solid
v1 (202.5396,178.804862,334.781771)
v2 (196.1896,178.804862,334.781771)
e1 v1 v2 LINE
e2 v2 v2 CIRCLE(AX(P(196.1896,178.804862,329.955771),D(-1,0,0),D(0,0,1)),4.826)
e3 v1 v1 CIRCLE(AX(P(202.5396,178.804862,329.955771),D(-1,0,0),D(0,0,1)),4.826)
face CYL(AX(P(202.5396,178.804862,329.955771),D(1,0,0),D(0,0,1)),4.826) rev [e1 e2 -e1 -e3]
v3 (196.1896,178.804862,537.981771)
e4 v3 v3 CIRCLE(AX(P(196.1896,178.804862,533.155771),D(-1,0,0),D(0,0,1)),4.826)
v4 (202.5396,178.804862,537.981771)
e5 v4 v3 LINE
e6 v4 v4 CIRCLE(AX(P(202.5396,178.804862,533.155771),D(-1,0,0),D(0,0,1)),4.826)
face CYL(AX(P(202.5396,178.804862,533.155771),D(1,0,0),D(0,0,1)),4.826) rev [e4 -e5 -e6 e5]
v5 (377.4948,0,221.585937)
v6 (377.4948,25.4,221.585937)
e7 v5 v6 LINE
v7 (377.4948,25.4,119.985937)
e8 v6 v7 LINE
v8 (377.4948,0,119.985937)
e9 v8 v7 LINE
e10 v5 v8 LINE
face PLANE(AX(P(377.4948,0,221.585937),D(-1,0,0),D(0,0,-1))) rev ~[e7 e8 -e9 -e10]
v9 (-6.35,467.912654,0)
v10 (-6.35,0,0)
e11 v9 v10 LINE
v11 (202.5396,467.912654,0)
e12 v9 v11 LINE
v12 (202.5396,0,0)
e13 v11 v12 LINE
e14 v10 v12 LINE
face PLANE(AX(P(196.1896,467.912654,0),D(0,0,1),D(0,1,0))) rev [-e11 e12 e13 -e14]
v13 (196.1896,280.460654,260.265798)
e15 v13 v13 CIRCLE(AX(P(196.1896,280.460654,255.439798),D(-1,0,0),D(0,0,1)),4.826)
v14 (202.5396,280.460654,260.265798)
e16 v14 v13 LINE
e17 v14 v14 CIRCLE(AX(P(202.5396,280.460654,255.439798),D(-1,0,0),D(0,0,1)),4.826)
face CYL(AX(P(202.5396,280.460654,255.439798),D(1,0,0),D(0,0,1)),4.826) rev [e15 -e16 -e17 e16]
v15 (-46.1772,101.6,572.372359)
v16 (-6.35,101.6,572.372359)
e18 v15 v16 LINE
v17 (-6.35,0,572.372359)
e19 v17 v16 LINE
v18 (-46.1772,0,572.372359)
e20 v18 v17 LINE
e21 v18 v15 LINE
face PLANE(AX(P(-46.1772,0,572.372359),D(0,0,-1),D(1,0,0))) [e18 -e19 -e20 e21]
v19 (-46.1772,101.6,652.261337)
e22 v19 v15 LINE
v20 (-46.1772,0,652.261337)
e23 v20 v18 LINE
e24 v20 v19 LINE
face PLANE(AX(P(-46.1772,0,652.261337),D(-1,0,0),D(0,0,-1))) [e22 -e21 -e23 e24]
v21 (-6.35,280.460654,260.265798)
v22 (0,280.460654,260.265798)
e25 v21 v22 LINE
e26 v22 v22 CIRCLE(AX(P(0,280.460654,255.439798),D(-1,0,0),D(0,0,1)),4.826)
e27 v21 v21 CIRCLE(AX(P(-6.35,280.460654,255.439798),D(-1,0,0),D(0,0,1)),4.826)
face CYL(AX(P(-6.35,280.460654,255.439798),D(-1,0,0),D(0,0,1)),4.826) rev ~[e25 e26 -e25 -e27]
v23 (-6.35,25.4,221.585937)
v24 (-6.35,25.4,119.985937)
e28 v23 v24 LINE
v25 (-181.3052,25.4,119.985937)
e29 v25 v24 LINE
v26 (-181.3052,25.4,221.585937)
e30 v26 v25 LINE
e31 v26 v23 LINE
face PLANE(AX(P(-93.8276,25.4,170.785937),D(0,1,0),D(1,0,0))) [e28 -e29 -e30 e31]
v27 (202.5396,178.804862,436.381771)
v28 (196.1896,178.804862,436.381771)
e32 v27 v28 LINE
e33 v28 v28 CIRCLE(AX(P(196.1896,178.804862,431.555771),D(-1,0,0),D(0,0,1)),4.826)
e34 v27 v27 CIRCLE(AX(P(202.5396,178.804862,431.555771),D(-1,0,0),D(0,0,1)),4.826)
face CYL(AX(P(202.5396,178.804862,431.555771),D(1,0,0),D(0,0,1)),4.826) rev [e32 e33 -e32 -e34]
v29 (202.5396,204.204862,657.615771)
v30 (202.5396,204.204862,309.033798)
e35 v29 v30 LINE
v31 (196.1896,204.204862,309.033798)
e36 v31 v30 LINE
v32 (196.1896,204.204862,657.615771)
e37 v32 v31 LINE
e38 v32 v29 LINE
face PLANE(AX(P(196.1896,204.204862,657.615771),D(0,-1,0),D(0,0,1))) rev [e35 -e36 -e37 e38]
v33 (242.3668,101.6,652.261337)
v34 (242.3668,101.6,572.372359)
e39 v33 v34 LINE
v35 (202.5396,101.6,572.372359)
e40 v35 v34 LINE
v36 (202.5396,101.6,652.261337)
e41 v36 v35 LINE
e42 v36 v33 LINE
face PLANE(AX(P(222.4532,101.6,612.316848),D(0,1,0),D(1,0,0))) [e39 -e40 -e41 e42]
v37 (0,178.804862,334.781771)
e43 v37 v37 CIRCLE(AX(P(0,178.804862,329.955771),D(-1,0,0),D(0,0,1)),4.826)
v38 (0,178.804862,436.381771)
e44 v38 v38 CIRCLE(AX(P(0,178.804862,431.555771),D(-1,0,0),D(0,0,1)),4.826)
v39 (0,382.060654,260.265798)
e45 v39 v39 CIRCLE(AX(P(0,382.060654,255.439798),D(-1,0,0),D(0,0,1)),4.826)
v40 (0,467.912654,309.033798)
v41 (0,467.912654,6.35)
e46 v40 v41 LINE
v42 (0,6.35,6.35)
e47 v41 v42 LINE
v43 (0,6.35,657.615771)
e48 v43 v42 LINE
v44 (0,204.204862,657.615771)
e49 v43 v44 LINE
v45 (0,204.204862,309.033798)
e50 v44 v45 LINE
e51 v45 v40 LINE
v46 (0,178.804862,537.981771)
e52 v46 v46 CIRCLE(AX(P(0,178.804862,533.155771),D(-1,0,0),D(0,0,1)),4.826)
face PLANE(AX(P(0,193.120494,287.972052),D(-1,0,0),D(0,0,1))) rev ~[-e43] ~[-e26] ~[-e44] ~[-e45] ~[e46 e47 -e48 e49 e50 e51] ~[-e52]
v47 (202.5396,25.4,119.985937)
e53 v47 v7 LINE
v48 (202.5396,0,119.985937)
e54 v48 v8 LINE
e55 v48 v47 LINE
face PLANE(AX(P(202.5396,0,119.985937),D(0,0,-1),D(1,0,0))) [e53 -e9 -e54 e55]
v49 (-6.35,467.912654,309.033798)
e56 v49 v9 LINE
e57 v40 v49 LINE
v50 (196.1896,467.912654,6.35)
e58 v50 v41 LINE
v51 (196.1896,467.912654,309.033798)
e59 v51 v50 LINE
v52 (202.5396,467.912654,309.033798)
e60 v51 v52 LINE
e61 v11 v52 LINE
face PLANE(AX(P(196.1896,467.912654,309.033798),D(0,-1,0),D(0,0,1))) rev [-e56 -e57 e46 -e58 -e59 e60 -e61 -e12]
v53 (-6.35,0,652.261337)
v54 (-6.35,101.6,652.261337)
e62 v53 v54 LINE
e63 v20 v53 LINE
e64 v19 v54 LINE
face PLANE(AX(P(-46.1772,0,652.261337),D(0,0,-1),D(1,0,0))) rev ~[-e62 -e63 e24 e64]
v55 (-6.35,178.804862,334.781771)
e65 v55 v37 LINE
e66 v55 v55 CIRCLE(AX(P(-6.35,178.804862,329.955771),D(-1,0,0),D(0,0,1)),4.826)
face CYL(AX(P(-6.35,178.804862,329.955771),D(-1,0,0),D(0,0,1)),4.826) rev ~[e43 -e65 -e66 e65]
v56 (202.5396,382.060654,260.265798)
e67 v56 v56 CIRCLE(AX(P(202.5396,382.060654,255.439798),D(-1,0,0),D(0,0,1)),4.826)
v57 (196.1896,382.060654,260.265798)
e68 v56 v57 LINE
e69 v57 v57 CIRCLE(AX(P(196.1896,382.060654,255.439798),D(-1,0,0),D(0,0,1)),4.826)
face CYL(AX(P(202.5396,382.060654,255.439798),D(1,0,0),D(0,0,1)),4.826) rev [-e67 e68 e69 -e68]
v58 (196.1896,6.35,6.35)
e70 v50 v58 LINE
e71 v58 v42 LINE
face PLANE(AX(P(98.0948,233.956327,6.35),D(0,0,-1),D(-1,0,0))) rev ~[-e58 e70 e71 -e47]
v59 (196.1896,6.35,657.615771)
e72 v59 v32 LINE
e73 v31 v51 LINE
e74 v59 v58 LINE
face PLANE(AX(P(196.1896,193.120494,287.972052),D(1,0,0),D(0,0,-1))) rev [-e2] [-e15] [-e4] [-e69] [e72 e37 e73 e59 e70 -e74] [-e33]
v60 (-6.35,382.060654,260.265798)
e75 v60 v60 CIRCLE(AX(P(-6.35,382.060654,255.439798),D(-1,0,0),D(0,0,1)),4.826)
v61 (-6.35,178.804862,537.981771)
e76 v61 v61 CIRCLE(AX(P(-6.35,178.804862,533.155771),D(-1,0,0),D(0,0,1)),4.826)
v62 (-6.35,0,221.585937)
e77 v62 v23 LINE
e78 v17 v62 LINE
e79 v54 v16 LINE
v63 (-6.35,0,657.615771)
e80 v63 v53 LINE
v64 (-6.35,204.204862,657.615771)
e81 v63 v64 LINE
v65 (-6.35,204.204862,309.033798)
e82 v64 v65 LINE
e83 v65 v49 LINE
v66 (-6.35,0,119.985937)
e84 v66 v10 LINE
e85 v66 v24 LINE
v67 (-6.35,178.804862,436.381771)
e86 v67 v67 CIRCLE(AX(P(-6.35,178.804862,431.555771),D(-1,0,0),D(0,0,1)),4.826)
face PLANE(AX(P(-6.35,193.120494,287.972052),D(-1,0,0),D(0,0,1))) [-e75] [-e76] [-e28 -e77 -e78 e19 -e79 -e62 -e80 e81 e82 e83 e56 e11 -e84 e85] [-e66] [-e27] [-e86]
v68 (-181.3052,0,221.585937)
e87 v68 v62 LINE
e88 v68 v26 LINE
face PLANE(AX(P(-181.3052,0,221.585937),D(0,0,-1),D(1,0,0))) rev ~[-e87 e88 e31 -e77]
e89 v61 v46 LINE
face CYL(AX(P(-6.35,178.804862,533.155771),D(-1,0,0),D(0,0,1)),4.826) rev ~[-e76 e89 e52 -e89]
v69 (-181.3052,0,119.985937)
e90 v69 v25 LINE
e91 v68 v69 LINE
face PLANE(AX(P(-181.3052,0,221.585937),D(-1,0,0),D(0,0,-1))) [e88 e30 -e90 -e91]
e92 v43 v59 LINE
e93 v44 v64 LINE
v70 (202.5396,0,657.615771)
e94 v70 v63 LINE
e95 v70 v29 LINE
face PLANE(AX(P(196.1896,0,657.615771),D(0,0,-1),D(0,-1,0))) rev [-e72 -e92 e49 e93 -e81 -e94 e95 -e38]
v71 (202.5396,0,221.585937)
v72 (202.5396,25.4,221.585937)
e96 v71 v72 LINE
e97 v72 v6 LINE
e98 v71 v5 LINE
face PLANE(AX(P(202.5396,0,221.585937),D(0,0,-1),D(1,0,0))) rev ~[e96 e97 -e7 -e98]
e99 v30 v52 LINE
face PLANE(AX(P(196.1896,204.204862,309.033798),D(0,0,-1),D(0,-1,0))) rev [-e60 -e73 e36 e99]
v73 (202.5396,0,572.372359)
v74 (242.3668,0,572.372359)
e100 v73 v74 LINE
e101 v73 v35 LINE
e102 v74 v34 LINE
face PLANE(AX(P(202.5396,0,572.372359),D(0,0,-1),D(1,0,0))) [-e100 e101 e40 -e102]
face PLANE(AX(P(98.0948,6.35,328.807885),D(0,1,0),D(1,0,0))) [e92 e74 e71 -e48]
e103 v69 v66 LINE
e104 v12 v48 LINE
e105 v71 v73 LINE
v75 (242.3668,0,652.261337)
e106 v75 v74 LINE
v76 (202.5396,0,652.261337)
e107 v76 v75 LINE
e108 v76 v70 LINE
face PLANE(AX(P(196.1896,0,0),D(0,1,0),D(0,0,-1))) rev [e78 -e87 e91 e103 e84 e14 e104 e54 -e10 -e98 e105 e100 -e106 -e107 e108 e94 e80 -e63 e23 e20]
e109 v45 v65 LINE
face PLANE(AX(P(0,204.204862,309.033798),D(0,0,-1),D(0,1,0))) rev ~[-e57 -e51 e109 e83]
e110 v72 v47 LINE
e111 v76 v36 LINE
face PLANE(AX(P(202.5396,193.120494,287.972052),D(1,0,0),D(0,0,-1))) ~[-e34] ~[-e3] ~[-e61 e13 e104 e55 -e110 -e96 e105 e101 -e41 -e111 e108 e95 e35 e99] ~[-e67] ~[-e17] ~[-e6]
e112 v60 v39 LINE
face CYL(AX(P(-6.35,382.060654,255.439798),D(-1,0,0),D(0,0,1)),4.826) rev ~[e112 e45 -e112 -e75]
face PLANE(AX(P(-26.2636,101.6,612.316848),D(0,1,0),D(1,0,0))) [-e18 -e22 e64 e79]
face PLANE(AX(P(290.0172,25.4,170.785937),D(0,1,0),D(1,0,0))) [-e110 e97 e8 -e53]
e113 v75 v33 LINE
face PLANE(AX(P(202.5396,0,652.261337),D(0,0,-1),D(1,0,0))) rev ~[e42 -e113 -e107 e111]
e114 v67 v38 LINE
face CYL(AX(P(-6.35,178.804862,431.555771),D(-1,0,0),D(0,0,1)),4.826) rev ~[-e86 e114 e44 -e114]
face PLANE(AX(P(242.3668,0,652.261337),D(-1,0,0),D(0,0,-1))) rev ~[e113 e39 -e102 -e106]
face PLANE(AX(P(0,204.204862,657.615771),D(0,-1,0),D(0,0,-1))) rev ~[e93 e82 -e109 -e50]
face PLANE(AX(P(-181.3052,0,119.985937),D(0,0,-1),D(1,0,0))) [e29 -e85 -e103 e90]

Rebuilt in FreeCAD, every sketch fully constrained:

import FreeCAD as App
import Part
import Sketcher
Q = App.Units.Quantity

doc = App.newDocument("Part")
params = doc.addObject("Spreadsheet::Sheet", "Params")
for row, (alias, value) in enumerate([
    ("pad1_length", "0.25 in"),
    ("sketch2_width", "7.724 in"),
    ("pad2_length", "0.25 in"),
    ("sketch3_width", "8.224 in"),
    ("pad3_length", "0.25 in"),
    ("sketch4_height", "4 in"),
    ("sketch4_width", "6.888 in"),
    ("pad4_length", "1 in"),
    ("sketch5_width", "1.568 in"),
    ("pad5_length", "4 in"),
    ("sketch6_diameter", "0.38 in"),
    ("pocket1_length", "0.25 in"),
], start=1):
    params.set(f"A{row}", alias)
    params.set(f"B{row}", "=" + value)
    params.setAlias(f"B{row}", alias)

body = doc.addObject("PartDesign::Body", "Body")

# Sketch on YZ plane
sketch1 = body.newObject("Sketcher::SketchObject", "Sketch")
sketch1.AttachmentSupport = (doc.getObject("YZ_Plane"), [""])
sketch1.MapMode = "FlatFace"
sketch1.addGeometry([
    Part.LineSegment(App.Vector(0, 658, 0), App.Vector(0, 0, 0)),  # 0
    Part.LineSegment(App.Vector(0, 0, 0), App.Vector(468, 0, 0)),  # 1
    Part.LineSegment(App.Vector(468, 0, 0), App.Vector(468, 309, 0)),  # 2
    Part.LineSegment(App.Vector(468, 309, 0), App.Vector(204, 309, 0)),  # 3
    Part.LineSegment(App.Vector(204, 309, 0), App.Vector(204, 658, 0)),  # 4
    Part.LineSegment(App.Vector(204, 658, 0), App.Vector(0, 658, 0)),  # 5
], False)
sketch1.addConstraint([
    Sketcher.Constraint("Coincident", 0, 2, 1, 1),
    Sketcher.Constraint("Coincident", 1, 2, 2, 1),
    Sketcher.Constraint("Coincident", 2, 2, 3, 1),
    Sketcher.Constraint("Coincident", 3, 2, 4, 1),
    Sketcher.Constraint("Coincident", 4, 2, 5, 1),
    Sketcher.Constraint("Coincident", 5, 2, 0, 1),
    Sketcher.Constraint("Vertical", 0),
    Sketcher.Constraint("Horizontal", 1),
    Sketcher.Constraint("Vertical", 2),
    Sketcher.Constraint("Horizontal", 3),
    Sketcher.Constraint("Vertical", 4),
    Sketcher.Constraint("Horizontal", 5),
    Sketcher.Constraint("Coincident", 0, 2, -1, 1),
    Sketcher.Constraint("DistanceY", 2, 1, 2, 2, 309.033798),
    Sketcher.Constraint("DistanceX", 5, 2, 5, 1, 204.204862),
    Sketcher.Constraint("DistanceY", 0, 2, 0, 1, 657.615771),
    Sketcher.Constraint("DistanceX", 1, 1, 1, 2, 467.912654),
])
pad1 = body.newObject("PartDesign::Pad", "Pad")
pad1.Profile = sketch1
pad1.setExpression("Length", "Params.pad1_length")
pad1.Reversed = True

# Sketch on XZ plane
sketch2 = body.newObject("Sketcher::SketchObject", "Sketch001")
sketch2.AttachmentSupport = (doc.getObject("XZ_Plane"), [""])
sketch2.MapMode = "FlatFace"
sketch2.addGeometry([
    Part.LineSegment(App.Vector(0, 0, 0), App.Vector(0, 658, 0)),
    Part.LineSegment(App.Vector(0, 658, 0), App.Vector(196, 658, 0)),
    Part.LineSegment(App.Vector(196, 658, 0), App.Vector(196, 0, 0)),
    Part.LineSegment(App.Vector(196, 0, 0), App.Vector(0, 0, 0)),
], False)
sketch2.addConstraint([
    Sketcher.Constraint("Coincident", 0, 2, 1, 1),
    Sketcher.Constraint("Coincident", 1, 2, 2, 1),
    Sketcher.Constraint("Coincident", 2, 2, 3, 1),
    Sketcher.Constraint("Coincident", 3, 2, 0, 1),
    Sketcher.Constraint("Vertical", 0),
    Sketcher.Constraint("Horizontal", 1),
    Sketcher.Constraint("Vertical", 2),
    Sketcher.Constraint("Horizontal", 3),
    Sketcher.Constraint("Coincident", 3, 2, -1, 1),
    Sketcher.Constraint("DistanceX", 1, 1, 1, 2, Q("7.724 in")),
    Sketcher.Constraint("DistanceY", 0, 1, 0, 2, 657.615771),
])
sketch2.setExpression("Constraints[9]", "Params.sketch2_width")
pad2 = body.newObject("PartDesign::Pad", "Pad001")
pad2.Profile = sketch2
pad2.setExpression("Length", "Params.pad2_length")
pad2.Reversed = True
doc.recompute()

datumplane = body.newObject("PartDesign::Plane", "DatumPlane")
datumplane.AttachmentSupport = (doc.getObject("YZ_Plane"), [""])
datumplane.MapMode = "FlatFace"
datumplane.AttachmentOffset = App.Placement(App.Vector(0, 0, 3.862 * 25.4), App.Rotation())
mirrored = body.newObject("PartDesign::Mirrored", "Mirrored")
mirrored.Originals = [pad1]
mirrored.MirrorPlane = (datumplane, [""])
body.Tip = mirrored

# Sketch on XY plane
sketch3 = body.newObject("Sketcher::SketchObject", "Sketch002")
sketch3.AttachmentSupport = (doc.getObject("XY_Plane"), [""])
sketch3.MapMode = "FlatFace"
sketch3.addGeometry([
    Part.LineSegment(App.Vector(203, 468, 0), App.Vector(203, 0, 0)),
    Part.LineSegment(App.Vector(203, 0, 0), App.Vector(-6, 0, 0)),
    Part.LineSegment(App.Vector(-6, 0, 0), App.Vector(-6, 468, 0)),
    Part.LineSegment(App.Vector(-6, 468, 0), App.Vector(203, 468, 0)),
], False)
sketch3.addConstraint([
    Sketcher.Constraint("Coincident", 0, 2, 1, 1),
    Sketcher.Constraint("Coincident", 1, 2, 2, 1),
    Sketcher.Constraint("Coincident", 2, 2, 3, 1),
    Sketcher.Constraint("Coincident", 3, 2, 0, 1),
    Sketcher.Constraint("Vertical", 0),
    Sketcher.Constraint("Horizontal", 1),
    Sketcher.Constraint("Vertical", 2),
    Sketcher.Constraint("Horizontal", 3),
    Sketcher.Constraint("PointOnObject", 0, 2, -1),
    Sketcher.Constraint("DistanceX", 1, 2, 1, 1, Q("8.224 in")),
    Sketcher.Constraint("DistanceX", 1, 2, -1, 1, Q("0.25 in")),
    Sketcher.Constraint("DistanceY", 0, 2, 0, 1, 467.912654),
])
sketch3.setExpression("Constraints[9]", "Params.sketch3_width")
pad3 = body.newObject("PartDesign::Pad", "Pad002")
pad3.Profile = sketch3
pad3.setExpression("Length", "Params.pad3_length")

# Sketch on XZ plane
sketch4 = body.newObject("Sketcher::SketchObject", "Sketch003")
sketch4.AttachmentSupport = (doc.getObject("XZ_Plane"), [""])
sketch4.MapMode = "FlatFace"
sketch4.addGeometry([
    Part.LineSegment(App.Vector(-181, 120, 0), App.Vector(-181, 222, 0)),  # 0
    Part.LineSegment(App.Vector(-181, 222, 0), App.Vector(-6, 222, 0)),  # 1
    Part.LineSegment(App.Vector(-6, 222, 0), App.Vector(-6, 120, 0)),  # 2
    Part.LineSegment(App.Vector(-6, 120, 0), App.Vector(-181, 120, 0)),  # 3
    Part.LineSegment(App.Vector(203, 120, 0), App.Vector(203, 222, 0)),  # 4
    Part.LineSegment(App.Vector(203, 222, 0), App.Vector(377, 222, 0)),  # 5
    Part.LineSegment(App.Vector(377, 222, 0), App.Vector(377, 120, 0)),  # 6
    Part.LineSegment(App.Vector(377, 120, 0), App.Vector(203, 120, 0)),  # 7
], False)
sketch4.addConstraint([
    Sketcher.Constraint("Coincident", 0, 2, 1, 1),
    Sketcher.Constraint("Coincident", 1, 2, 2, 1),
    Sketcher.Constraint("Coincident", 2, 2, 3, 1),
    Sketcher.Constraint("Coincident", 3, 2, 0, 1),
    Sketcher.Constraint("Coincident", 4, 2, 5, 1),
    Sketcher.Constraint("Coincident", 5, 2, 6, 1),
    Sketcher.Constraint("Coincident", 6, 2, 7, 1),
    Sketcher.Constraint("Coincident", 7, 2, 4, 1),
    Sketcher.Constraint("Vertical", 0),
    Sketcher.Constraint("Horizontal", 1),
    Sketcher.Constraint("Vertical", 2),
    Sketcher.Constraint("Horizontal", 3),
    Sketcher.Constraint("Vertical", 4),
    Sketcher.Constraint("Horizontal", 5),
    Sketcher.Constraint("Vertical", 6),
    Sketcher.Constraint("Horizontal", 7),
    Sketcher.Constraint("Horizontal", 1, 2, 4, 2),
    Sketcher.Constraint("Horizontal", 3, 2, 6, 2),
    Sketcher.Constraint("Equal", 3, 5),
    Sketcher.Constraint("DistanceY", 0, 1, 0, 2, Q("4 in")),
    Sketcher.Constraint("DistanceX", 0, 2, 5, 2, Q("22 in")),
    Sketcher.Constraint("DistanceX", 1, 1, 1, 2, Q("6.888 in")),
    Sketcher.Constraint("DistanceX", 1, 2, -1, 1, Q("0.25 in")),
    Sketcher.Constraint("DistanceY", -1, 1, 0, 2, 221.585937),
])
sketch4.setExpression("Constraints[19]", "Params.sketch4_height")
sketch4.setExpression("Constraints[21]", "Params.sketch4_width")
pad4 = body.newObject("PartDesign::Pad", "Pad003")
pad4.Profile = sketch4
pad4.setExpression("Length", "Params.pad4_length")
pad4.Reversed = True

# Sketch on XZ plane
sketch5 = body.newObject("Sketcher::SketchObject", "Sketch004")
sketch5.AttachmentSupport = (doc.getObject("XZ_Plane"), [""])
sketch5.MapMode = "FlatFace"
sketch5.addGeometry([
    Part.LineSegment(App.Vector(-46, 572, 0), App.Vector(-46, 652, 0)),  # 0
    Part.LineSegment(App.Vector(-46, 652, 0), App.Vector(-6, 652, 0)),  # 1
    Part.LineSegment(App.Vector(-6, 652, 0), App.Vector(-6, 572, 0)),  # 2
    Part.LineSegment(App.Vector(-6, 572, 0), App.Vector(-46, 572, 0)),  # 3
    Part.LineSegment(App.Vector(203, 572, 0), App.Vector(203, 652, 0)),  # 4
    Part.LineSegment(App.Vector(203, 652, 0), App.Vector(242, 652, 0)),  # 5
    Part.LineSegment(App.Vector(242, 652, 0), App.Vector(242, 572, 0)),  # 6
    Part.LineSegment(App.Vector(242, 572, 0), App.Vector(203, 572, 0)),  # 7
], False)
sketch5.addConstraint([
    Sketcher.Constraint("Coincident", 0, 2, 1, 1),
    Sketcher.Constraint("Coincident", 1, 2, 2, 1),
    Sketcher.Constraint("Coincident", 2, 2, 3, 1),
    Sketcher.Constraint("Coincident", 3, 2, 0, 1),
    Sketcher.Constraint("Coincident", 4, 2, 5, 1),
    Sketcher.Constraint("Coincident", 5, 2, 6, 1),
    Sketcher.Constraint("Coincident", 6, 2, 7, 1),
    Sketcher.Constraint("Coincident", 7, 2, 4, 1),
    Sketcher.Constraint("Vertical", 0),
    Sketcher.Constraint("Horizontal", 1),
    Sketcher.Constraint("Vertical", 2),
    Sketcher.Constraint("Horizontal", 3),
    Sketcher.Constraint("Vertical", 4),
    Sketcher.Constraint("Horizontal", 5),
    Sketcher.Constraint("Vertical", 6),
    Sketcher.Constraint("Horizontal", 7),
    Sketcher.Constraint("Horizontal", 1, 2, 4, 2),
    Sketcher.Constraint("Horizontal", 3, 2, 6, 2),
    Sketcher.Constraint("Equal", 3, 5),
    Sketcher.Constraint("DistanceX", 1, 1, 1, 2, Q("1.568 in")),
    Sketcher.Constraint("DistanceX", 1, 2, -1, 1, Q("0.25 in")),
    Sketcher.Constraint("DistanceX", 0, 2, 5, 2, Q("11.36 in")),
    Sketcher.Constraint("DistanceY", 0, 1, 0, 2, 79.888978),
    Sketcher.Constraint("DistanceY", -1, 1, 2, 2, 572.372359),
])
sketch5.setExpression("Constraints[19]", "Params.sketch5_width")
pad5 = body.newObject("PartDesign::Pad", "Pad004")
pad5.Profile = sketch5
pad5.setExpression("Length", "Params.pad5_length")
pad5.Reversed = True

# Sketch on YZ plane
sketch6 = body.newObject("Sketcher::SketchObject", "Sketch005")
sketch6.AttachmentSupport = (doc.getObject("YZ_Plane"), [""])
sketch6.MapMode = "FlatFace"
sketch6.AttachmentOffset = App.Placement(App.Vector(0, 0, -0.25 * 25.4), App.Rotation())
sketch6.addGeometry([
    Part.Circle(App.Vector(178.8, 533.2, 0), App.Vector(0, 0, 1), 4.8),  # 0
    Part.Circle(App.Vector(178.8, 431.6, 0), App.Vector(0, 0, 1), 4.8),  # 1
    Part.Circle(App.Vector(178.8, 330, 0), App.Vector(0, 0, 1), 4.8),  # 2
    Part.Circle(App.Vector(280.5, 255.4, 0), App.Vector(0, 0, 1), 4.8),  # 3
    Part.Circle(App.Vector(382.1, 255.4, 0), App.Vector(0, 0, 1), 4.8),  # 4
], False)
sketch6.addConstraint([
    Sketcher.Constraint("Equal", 0, 1),
    Sketcher.Constraint("Equal", 1, 2),
    Sketcher.Constraint("Equal", 2, 3),
    Sketcher.Constraint("Equal", 3, 4),
    Sketcher.Constraint("Horizontal", 3, 3, 4, 3),
    Sketcher.Constraint("Vertical", 0, 3, 1, 3),
    Sketcher.Constraint("Vertical", 1, 3, 2, 3),
    Sketcher.Constraint("Diameter", 0, Q("0.38 in")),
    Sketcher.Constraint("DistanceY", 1, 3, 0, 3, Q("4 in")),
    Sketcher.Constraint("DistanceY", 2, 3, 1, 3, Q("4 in")),
    Sketcher.Constraint("DistanceX", 3, 3, 4, 3, Q("4 in")),
    Sketcher.Constraint("DistanceY", -1, 1, 3, 3, 255.439798),
    Sketcher.Constraint("DistanceX", -1, 1, 0, 3, 178.804862),
    Sketcher.Constraint("DistanceY", -1, 1, 0, 3, 533.155771),
    Sketcher.Constraint("DistanceX", -1, 1, 3, 3, 280.460654),
])
sketch6.setExpression("Constraints[7]", "Params.sketch6_diameter")
pocket1 = body.newObject("PartDesign::Pocket", "Pocket")
pocket1.Profile = sketch6
pocket1.setExpression("Length", "Params.pocket1_length")
pocket1.Reversed = True
doc.recompute()

datumplane2 = body.newObject("PartDesign::Plane", "DatumPlane001")
datumplane2.AttachmentSupport = (doc.getObject("YZ_Plane"), [""])
datumplane2.MapMode = "FlatFace"
datumplane2.AttachmentOffset = App.Placement(App.Vector(0, 0, 3.862 * 25.4), App.Rotation())
mirrored2 = body.newObject("PartDesign::Mirrored", "Mirrored001")
mirrored2.Originals = [pocket1]
mirrored2.MirrorPlane = (datumplane2, [""])
body.Tip = mirrored2

doc.recompute()
